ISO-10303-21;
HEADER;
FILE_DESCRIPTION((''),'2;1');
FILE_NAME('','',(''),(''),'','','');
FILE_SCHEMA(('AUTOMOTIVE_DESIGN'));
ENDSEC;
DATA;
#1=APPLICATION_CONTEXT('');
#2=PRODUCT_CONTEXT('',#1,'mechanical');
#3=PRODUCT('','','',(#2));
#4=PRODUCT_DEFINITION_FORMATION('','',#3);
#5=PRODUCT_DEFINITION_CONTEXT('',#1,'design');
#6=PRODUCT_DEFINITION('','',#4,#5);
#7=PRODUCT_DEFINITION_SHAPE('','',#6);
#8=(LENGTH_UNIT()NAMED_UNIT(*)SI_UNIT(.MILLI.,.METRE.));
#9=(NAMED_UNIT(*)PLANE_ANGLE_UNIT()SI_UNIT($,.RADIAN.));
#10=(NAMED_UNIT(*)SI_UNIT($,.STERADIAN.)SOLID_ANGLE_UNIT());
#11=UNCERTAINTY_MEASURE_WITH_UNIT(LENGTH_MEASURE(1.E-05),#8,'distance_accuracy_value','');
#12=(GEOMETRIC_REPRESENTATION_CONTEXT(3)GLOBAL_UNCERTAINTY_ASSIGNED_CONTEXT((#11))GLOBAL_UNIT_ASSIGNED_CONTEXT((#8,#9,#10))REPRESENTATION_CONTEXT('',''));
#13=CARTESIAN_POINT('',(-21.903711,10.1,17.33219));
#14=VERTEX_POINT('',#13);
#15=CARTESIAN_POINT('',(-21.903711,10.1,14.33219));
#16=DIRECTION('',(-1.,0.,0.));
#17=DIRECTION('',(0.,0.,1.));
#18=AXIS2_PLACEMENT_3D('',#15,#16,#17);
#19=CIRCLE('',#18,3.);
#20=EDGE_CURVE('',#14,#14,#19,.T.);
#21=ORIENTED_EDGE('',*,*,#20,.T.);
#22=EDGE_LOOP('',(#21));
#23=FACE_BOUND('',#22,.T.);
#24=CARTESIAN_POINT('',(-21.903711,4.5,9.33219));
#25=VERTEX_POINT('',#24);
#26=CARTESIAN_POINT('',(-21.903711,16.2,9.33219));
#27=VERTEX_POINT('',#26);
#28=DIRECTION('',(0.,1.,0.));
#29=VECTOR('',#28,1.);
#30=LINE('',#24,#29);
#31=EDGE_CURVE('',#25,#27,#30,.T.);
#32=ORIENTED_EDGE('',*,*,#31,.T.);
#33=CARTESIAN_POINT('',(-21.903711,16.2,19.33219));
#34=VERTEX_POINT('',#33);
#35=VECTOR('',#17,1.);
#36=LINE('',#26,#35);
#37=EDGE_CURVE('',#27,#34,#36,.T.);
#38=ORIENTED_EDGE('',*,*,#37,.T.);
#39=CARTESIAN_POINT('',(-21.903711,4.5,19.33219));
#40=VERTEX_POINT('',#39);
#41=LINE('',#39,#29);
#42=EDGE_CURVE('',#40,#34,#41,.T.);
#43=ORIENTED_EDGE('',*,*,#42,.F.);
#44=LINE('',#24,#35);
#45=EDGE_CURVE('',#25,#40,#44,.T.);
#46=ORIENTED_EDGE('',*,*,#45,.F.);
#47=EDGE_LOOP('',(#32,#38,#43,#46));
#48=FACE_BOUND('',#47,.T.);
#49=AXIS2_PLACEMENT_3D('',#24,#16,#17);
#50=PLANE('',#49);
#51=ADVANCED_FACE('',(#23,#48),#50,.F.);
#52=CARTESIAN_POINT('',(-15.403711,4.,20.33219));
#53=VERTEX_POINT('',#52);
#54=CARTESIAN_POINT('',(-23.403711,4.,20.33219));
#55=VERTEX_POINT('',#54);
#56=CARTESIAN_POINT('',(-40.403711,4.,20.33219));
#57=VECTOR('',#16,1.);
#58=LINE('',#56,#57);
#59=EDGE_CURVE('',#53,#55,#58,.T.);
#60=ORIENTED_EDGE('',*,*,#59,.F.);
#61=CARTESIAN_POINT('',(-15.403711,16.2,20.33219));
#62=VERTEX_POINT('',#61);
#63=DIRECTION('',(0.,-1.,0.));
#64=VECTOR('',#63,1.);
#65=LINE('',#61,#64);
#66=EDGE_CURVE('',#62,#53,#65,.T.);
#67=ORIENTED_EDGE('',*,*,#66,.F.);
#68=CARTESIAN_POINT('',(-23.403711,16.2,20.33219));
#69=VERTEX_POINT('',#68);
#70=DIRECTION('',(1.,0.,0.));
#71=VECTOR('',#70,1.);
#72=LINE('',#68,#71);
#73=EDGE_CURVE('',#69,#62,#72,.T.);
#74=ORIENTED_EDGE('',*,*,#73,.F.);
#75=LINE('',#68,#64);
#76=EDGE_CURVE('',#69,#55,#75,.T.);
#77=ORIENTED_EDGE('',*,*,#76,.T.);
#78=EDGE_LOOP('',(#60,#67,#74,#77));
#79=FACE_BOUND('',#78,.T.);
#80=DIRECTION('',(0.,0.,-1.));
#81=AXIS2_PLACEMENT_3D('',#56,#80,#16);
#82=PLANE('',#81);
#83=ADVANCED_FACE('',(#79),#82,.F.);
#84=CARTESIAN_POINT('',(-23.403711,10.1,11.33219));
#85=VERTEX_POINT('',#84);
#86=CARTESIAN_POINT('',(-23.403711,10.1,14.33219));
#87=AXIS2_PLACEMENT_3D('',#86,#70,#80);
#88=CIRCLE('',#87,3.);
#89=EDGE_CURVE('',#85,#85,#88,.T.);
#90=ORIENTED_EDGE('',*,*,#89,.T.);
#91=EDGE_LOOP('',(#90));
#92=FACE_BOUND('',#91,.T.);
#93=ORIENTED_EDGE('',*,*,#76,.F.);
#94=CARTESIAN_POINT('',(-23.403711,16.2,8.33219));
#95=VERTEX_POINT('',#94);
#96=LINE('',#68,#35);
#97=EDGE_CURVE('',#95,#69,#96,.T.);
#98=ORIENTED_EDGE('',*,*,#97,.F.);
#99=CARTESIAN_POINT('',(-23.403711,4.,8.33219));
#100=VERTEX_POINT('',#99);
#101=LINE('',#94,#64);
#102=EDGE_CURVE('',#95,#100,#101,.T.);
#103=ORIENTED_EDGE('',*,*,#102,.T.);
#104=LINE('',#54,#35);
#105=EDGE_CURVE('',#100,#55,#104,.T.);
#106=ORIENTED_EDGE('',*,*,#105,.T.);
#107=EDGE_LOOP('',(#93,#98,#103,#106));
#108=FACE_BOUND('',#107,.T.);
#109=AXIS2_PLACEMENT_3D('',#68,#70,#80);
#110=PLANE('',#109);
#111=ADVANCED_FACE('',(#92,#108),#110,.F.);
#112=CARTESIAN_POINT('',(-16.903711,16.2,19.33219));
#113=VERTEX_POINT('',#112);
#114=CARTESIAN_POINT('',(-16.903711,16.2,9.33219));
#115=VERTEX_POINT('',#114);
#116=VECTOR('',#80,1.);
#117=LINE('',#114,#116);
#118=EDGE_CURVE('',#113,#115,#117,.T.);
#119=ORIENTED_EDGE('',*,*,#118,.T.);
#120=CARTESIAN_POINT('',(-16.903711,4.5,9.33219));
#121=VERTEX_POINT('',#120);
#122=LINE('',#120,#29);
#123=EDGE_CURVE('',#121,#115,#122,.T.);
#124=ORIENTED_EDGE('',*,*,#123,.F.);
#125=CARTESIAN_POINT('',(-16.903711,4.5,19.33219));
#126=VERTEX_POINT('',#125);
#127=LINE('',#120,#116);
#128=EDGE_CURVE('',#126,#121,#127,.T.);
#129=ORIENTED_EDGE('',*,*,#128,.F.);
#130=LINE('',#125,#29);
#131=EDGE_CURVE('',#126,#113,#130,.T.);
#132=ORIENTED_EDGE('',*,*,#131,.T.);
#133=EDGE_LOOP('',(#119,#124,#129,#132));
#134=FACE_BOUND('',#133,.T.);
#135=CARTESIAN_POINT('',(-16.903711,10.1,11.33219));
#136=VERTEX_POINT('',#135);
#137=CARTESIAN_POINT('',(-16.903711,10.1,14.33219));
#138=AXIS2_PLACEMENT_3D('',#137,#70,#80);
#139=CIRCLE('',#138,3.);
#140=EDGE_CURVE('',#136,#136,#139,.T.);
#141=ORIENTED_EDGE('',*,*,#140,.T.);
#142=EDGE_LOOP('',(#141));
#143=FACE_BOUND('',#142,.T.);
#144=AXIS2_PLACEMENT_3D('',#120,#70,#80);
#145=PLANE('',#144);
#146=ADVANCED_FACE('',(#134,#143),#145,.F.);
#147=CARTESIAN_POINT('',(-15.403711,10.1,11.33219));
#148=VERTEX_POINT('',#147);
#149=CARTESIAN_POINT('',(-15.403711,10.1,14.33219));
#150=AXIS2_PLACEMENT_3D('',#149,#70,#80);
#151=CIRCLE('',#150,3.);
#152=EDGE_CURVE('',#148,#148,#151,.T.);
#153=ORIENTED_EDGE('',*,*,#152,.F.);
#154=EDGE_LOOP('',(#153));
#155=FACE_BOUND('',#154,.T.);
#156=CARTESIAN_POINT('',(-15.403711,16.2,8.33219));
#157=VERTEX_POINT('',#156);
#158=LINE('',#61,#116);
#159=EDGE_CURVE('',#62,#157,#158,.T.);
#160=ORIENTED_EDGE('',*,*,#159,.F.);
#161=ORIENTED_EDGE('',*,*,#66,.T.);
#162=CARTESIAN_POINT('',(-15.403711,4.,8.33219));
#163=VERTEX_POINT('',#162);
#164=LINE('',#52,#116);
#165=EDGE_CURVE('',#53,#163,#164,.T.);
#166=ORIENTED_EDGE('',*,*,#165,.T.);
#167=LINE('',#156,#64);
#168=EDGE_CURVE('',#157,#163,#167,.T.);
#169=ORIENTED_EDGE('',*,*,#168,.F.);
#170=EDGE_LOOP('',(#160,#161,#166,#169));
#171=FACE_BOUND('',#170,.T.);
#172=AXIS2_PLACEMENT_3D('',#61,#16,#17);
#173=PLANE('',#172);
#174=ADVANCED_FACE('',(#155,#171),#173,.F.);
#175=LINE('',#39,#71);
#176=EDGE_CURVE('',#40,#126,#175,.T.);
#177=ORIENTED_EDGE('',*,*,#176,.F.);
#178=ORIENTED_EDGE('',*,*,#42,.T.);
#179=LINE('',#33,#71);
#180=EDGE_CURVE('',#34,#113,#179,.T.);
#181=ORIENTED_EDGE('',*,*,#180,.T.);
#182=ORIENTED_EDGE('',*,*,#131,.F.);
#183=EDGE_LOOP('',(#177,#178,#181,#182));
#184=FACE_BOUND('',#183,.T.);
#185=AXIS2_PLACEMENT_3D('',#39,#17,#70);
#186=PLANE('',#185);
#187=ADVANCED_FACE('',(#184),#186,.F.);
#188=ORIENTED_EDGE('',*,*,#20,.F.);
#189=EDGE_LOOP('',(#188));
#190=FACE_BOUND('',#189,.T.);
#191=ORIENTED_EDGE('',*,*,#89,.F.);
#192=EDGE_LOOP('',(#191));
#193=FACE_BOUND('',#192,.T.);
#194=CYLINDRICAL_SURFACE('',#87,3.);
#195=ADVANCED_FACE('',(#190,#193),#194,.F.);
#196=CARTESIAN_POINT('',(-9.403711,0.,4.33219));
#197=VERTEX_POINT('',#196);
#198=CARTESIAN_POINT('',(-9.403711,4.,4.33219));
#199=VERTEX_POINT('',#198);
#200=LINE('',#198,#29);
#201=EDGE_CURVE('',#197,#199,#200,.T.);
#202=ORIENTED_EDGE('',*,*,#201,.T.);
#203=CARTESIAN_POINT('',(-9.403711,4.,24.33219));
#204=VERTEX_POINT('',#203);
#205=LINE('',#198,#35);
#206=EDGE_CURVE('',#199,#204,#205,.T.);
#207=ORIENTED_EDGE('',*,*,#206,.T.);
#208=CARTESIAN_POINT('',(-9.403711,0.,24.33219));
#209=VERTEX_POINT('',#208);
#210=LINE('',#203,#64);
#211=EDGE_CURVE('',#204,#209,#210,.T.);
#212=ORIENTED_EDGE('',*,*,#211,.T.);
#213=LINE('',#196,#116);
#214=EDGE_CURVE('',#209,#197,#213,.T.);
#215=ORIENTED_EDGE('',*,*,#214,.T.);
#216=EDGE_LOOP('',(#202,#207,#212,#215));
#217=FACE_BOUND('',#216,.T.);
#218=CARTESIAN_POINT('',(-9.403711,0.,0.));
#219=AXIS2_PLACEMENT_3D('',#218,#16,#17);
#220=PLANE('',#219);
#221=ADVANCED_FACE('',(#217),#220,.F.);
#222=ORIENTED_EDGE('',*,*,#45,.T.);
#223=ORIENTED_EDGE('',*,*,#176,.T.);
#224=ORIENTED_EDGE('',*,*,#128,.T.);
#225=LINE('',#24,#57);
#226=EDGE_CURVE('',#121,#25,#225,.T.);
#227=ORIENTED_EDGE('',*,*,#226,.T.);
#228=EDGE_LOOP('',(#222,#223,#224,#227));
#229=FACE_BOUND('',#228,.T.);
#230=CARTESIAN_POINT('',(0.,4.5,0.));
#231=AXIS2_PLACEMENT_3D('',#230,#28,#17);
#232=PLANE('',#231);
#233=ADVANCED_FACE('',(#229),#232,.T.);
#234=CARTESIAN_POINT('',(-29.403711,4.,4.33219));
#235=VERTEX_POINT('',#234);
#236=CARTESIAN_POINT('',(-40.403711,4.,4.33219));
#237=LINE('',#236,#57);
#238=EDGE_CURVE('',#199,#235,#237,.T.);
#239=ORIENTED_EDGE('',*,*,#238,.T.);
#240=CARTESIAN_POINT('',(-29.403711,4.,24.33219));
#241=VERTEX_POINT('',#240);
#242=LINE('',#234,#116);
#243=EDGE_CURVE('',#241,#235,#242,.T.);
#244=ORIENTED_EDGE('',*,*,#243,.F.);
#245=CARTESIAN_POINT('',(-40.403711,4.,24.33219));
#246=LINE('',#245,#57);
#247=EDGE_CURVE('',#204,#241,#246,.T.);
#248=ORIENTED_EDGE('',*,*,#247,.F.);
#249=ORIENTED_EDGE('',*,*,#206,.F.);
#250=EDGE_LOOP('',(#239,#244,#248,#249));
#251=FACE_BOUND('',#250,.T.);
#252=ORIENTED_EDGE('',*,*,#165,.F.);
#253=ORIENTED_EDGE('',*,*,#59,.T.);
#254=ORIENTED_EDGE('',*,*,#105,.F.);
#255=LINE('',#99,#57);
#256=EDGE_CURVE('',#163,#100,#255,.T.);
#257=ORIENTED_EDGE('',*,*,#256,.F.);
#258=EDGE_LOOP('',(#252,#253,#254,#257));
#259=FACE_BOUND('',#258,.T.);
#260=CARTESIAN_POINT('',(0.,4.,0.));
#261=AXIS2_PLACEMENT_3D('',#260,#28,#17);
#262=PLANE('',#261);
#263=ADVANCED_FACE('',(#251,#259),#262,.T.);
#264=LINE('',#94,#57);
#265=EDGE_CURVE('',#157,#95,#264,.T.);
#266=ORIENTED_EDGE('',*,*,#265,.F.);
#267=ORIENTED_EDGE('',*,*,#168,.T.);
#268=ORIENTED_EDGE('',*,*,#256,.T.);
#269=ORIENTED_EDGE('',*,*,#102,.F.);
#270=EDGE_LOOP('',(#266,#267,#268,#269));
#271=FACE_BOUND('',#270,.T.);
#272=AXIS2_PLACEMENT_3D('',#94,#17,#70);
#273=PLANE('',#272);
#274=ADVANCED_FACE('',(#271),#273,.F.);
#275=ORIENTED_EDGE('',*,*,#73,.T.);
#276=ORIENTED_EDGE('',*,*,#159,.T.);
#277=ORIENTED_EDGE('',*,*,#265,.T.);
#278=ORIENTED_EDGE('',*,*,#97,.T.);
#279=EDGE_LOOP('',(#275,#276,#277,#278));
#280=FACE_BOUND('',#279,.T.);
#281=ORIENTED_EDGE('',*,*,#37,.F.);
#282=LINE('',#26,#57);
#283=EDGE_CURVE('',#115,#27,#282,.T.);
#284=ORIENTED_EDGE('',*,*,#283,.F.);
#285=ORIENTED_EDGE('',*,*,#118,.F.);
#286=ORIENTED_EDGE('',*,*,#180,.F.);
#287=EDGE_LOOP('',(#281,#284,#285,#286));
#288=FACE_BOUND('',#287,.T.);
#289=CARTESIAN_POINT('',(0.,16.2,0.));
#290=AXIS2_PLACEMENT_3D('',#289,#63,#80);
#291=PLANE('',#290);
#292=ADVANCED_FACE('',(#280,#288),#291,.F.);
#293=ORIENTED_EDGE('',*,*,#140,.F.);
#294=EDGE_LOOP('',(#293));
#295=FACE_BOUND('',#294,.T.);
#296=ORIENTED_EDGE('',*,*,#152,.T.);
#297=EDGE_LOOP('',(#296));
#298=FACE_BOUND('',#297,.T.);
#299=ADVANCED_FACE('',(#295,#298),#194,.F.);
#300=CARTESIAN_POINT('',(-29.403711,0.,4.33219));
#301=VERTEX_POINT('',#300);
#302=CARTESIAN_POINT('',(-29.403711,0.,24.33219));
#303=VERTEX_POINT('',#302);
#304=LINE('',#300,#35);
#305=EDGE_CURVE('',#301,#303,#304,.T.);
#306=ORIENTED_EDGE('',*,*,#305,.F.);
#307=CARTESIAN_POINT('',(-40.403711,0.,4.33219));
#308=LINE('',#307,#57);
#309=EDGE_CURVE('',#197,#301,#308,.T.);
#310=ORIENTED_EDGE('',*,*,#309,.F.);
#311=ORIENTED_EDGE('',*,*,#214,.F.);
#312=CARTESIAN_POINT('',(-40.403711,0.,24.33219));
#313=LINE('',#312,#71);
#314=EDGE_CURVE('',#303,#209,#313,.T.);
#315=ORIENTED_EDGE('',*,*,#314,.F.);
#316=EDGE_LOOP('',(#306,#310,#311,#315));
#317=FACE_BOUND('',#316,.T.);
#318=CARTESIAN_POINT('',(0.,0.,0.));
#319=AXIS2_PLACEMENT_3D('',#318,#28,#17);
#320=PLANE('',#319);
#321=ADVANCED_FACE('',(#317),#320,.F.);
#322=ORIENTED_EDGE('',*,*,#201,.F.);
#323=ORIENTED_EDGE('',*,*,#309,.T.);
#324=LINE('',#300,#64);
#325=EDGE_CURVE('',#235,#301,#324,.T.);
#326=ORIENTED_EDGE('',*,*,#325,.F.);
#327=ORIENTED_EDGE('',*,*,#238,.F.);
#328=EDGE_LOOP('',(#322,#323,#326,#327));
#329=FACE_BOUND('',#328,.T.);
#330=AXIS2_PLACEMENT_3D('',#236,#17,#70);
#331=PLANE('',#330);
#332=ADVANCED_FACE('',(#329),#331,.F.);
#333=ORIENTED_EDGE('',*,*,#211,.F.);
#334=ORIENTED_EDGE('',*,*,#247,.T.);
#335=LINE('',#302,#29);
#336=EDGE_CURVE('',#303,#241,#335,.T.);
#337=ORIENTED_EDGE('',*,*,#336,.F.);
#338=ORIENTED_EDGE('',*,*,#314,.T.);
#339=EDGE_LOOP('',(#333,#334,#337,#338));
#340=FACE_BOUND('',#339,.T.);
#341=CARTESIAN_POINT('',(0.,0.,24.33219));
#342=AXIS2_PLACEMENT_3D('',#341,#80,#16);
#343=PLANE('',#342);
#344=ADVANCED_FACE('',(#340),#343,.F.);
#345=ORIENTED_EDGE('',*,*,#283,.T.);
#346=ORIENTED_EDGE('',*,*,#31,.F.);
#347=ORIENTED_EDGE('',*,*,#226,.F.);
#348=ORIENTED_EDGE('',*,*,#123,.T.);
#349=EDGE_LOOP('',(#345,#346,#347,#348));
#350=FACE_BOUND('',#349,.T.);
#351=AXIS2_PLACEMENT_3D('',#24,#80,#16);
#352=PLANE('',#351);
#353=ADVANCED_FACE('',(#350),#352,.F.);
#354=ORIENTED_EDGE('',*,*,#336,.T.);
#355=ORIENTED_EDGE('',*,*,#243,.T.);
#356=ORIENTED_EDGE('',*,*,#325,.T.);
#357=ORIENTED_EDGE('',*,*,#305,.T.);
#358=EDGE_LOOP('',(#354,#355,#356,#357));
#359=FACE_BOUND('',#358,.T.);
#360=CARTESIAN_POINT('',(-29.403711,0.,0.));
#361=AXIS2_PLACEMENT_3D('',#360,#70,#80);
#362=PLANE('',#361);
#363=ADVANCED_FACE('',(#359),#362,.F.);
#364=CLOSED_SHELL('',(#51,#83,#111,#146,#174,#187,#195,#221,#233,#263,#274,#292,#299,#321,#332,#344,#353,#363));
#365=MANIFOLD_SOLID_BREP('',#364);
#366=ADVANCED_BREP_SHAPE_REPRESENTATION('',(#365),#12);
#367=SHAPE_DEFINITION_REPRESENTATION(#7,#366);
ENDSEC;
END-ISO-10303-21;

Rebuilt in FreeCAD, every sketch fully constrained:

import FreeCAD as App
import Part
import Sketcher

V = App.Vector
Q = App.Units.Quantity

doc = App.newDocument("Part")
body = doc.addObject("PartDesign::Body", "Body")

# Sketch on XZ plane
sketch1 = doc.addObject("Sketcher::SketchObject", "Sketch")
body.addObject(sketch1)
sketch1.AttachmentSupport = (doc.XZ_Plane, [""])
sketch1.MapMode = "FlatFace"
sketch1.addGeometry([
    Part.LineSegment(V(-40.403711, 4.33219, 0), V(-40.403711, 20.33219, 0)),
    Part.LineSegment(V(-40.403711, 20.33219, 0), V(1.596289, 20.33219, 0)),
    Part.LineSegment(V(1.596289, 20.33219, 0), V(1.596289, 4.33219, 0)),
    Part.LineSegment(V(1.596289, 4.33219, 0), V(-40.403711, 4.33219, 0)),
], False)
sketch1.addConstraint([
    Sketcher.Constraint("Coincident", 0, 2, 1, 1),
    Sketcher.Constraint("Coincident", 1, 2, 2, 1),
    Sketcher.Constraint("Coincident", 2, 2, 3, 1),
    Sketcher.Constraint("Coincident", 3, 2, 0, 1),
    Sketcher.Constraint("Vertical", 0),
    Sketcher.Constraint("Horizontal", 1),
    Sketcher.Constraint("Vertical", 2),
    Sketcher.Constraint("Horizontal", 3),
    Sketcher.Constraint("DistanceX", 1, 1, 1, 2, Q("42 mm")),
    Sketcher.Constraint("DistanceY", 0, 1, 0, 2, Q("16 mm")),
    Sketcher.Constraint("DistanceX", 0, 2, -1, 1, Q("40.403711 mm")),
    Sketcher.Constraint("DistanceY", -1, 1, 0, 2, Q("20.33219 mm")),
])
pad1 = doc.addObject("PartDesign::Pad", "Pad")
body.addObject(pad1)
pad1.Profile = sketch1
pad1.Length = 4
pad1.Reversed = True

# Sketch on XZ plane
sketch2 = doc.addObject("Sketcher::SketchObject", "Sketch001")
body.addObject(sketch2)
sketch2.AttachmentSupport = (doc.XZ_Plane, [""])
sketch2.MapMode = "FlatFace"
sketch2.AttachmentOffset = App.Placement(V(0, 0, -4), App.Rotation())
sketch2.addGeometry([
    Part.LineSegment(V(-23.403711, 8.33219, 0), V(-23.403711, 20.33219, 0)),
    Part.LineSegment(V(-23.403711, 20.33219, 0), V(-15.403711, 20.33219, 0)),
    Part.LineSegment(V(-15.403711, 20.33219, 0), V(-15.403711, 8.33219, 0)),
    Part.LineSegment(V(-15.403711, 8.33219, 0), V(-23.403711, 8.33219, 0)),
], False)
sketch2.addConstraint([
    Sketcher.Constraint("Coincident", 0, 2, 1, 1),
    Sketcher.Constraint("Coincident", 1, 2, 2, 1),
    Sketcher.Constraint("Coincident", 2, 2, 3, 1),
    Sketcher.Constraint("Coincident", 3, 2, 0, 1),
    Sketcher.Constraint("Vertical", 0),
    Sketcher.Constraint("Horizontal", 1),
    Sketcher.Constraint("Vertical", 2),
    Sketcher.Constraint("Horizontal", 3),
    Sketcher.Constraint("DistanceX", 1, 1, 1, 2, Q("8 mm")),
    Sketcher.Constraint("DistanceY", 0, 1, 0, 2, Q("12 mm")),
    Sketcher.Constraint("DistanceX", 0, 2, -1, 1, Q("23.403711 mm")),
    Sketcher.Constraint("DistanceY", -1, 1, 0, 2, Q("20.33219 mm")),
])
pad2 = doc.addObject("PartDesign::Pad", "Pad001")
body.addObject(pad2)
pad2.Profile = sketch2
pad2.Length = 12.2
pad2.Reversed = True

# Sketch on XZ plane
sketch3 = doc.addObject("Sketcher::SketchObject", "Sketch002")
body.addObject(sketch3)
sketch3.AttachmentSupport = (doc.XZ_Plane, [""])
sketch3.MapMode = "FlatFace"
sketch3.AttachmentOffset = App.Placement(V(0, 0, -16.2), App.Rotation())
sketch3.addGeometry([
    Part.LineSegment(V(-21.903711, 9.33219, 0), V(-21.903711, 19.33219, 0)),
    Part.LineSegment(V(-21.903711, 19.33219, 0), V(-16.903711, 19.33219, 0)),
    Part.LineSegment(V(-16.903711, 19.33219, 0), V(-16.903711, 9.33219, 0)),
    Part.LineSegment(V(-16.903711, 9.33219, 0), V(-21.903711, 9.33219, 0)),
], False)
sketch3.addConstraint([
    Sketcher.Constraint("Coincident", 0, 2, 1, 1),
    Sketcher.Constraint("Coincident", 1, 2, 2, 1),
    Sketcher.Constraint("Coincident", 2, 2, 3, 1),
    Sketcher.Constraint("Coincident", 3, 2, 0, 1),
    Sketcher.Constraint("Vertical", 0),
    Sketcher.Constraint("Horizontal", 1),
    Sketcher.Constraint("Vertical", 2),
    Sketcher.Constraint("Horizontal", 3),
    Sketcher.Constraint("DistanceX", 1, 1, 1, 2, Q("5 mm")),
    Sketcher.Constraint("DistanceY", 0, 1, 0, 2, Q("10 mm")),
    Sketcher.Constraint("DistanceX", 0, 2, -1, 1, Q("21.903711 mm")),
    Sketcher.Constraint("DistanceY", -1, 1, 0, 2, Q("19.33219 mm")),
])
pocket1 = doc.addObject("PartDesign::Pocket", "Pocket")
body.addObject(pocket1)
pocket1.Profile = sketch3
pocket1.Length = 11.7
pocket1.Reversed = True

# Sketch on YZ plane
sketch4 = doc.addObject("Sketcher::SketchObject", "Sketch003")
body.addObject(sketch4)
sketch4.AttachmentSupport = (doc.YZ_Plane, [""])
sketch4.MapMode = "FlatFace"
sketch4.AttachmentOffset = App.Placement(V(0, 0, -15.403711), App.Rotation())
sketch4.addGeometry(Part.Circle(V(10.1, 14.33219, 0), V(0, 0, 1), 3), False)
sketch4.addConstraint([
    Sketcher.Constraint("Diameter", 0, Q("6 mm")),
    Sketcher.Constraint("DistanceX", -1, 1, 0, 3, Q("10.1 mm")),
    Sketcher.Constraint("DistanceY", -1, 1, 0, 3, Q("14.33219 mm")),
])
pocket2 = doc.addObject("PartDesign::Pocket", "Pocket001")
body.addObject(pocket2)
pocket2.Profile = sketch4
pocket2.Length = 8

# Sketch on XY plane
sketch5 = doc.addObject("Sketcher::SketchObject", "Sketch004")
body.addObject(sketch5)
sketch5.AttachmentSupport = (doc.XY_Plane, [""])
sketch5.MapMode = "FlatFace"
sketch5.AttachmentOffset = App.Placement(V(0, 0, 20.33219), App.Rotation())
sketch5.addGeometry([
    Part.LineSegment(V(-40.403711, 4, 0), V(-40.403711, 0, 0)),
    Part.LineSegment(V(-40.403711, 0, 0), V(1.596289, 0, 0)),
    Part.LineSegment(V(1.596289, 0, 0), V(1.596289, 4, 0)),
    Part.LineSegment(V(1.596289, 4, 0), V(-40.403711, 4, 0)),
], False)
sketch5.addConstraint([
    Sketcher.Constraint("Coincident", 0, 2, 1, 1),
    Sketcher.Constraint("Coincident", 1, 2, 2, 1),
    Sketcher.Constraint("Coincident", 2, 2, 3, 1),
    Sketcher.Constraint("Coincident", 3, 2, 0, 1),
    Sketcher.Constraint("Vertical", 0),
    Sketcher.Constraint("Horizontal", 1),
    Sketcher.Constraint("Vertical", 2),
    Sketcher.Constraint("Horizontal", 3),
    Sketcher.Constraint("PointOnObject", 0, 2, -1),
    Sketcher.Constraint("DistanceX", 1, 1, 1, 2, Q("42 mm")),
    Sketcher.Constraint("DistanceY", 0, 2, 0, 1, Q("4 mm")),
    Sketcher.Constraint("DistanceX", 0, 2, -1, 1, Q("40.403711 mm")),
])
pad3 = doc.addObject("PartDesign::Pad", "Pad002")
body.addObject(pad3)
pad3.Profile = sketch5
pad3.Length = 4

# Sketch on YZ plane
sketch6 = doc.addObject("Sketcher::SketchObject", "Sketch005")
body.addObject(sketch6)
sketch6.AttachmentSupport = (doc.YZ_Plane, [""])
sketch6.MapMode = "FlatFace"
sketch6.AttachmentOffset = App.Placement(V(0, 0, -40.403711), App.Rotation())
sketch6.addGeometry([
    Part.LineSegment(V(4, 4.33219, 0), V(0, 4.33219, 0)),
    Part.LineSegment(V(0, 4.33219, 0), V(0, 24.33219, 0)),
    Part.LineSegment(V(0, 24.33219, 0), V(4, 24.33219, 0)),
    Part.LineSegment(V(4, 24.33219, 0), V(4, 4.33219, 0)),
], False)
sketch6.addConstraint([
    Sketcher.Constraint("Coincident", 0, 2, 1, 1),
    Sketcher.Constraint("Coincident", 1, 2, 2, 1),
    Sketcher.Constraint("Coincident", 2, 2, 3, 1),
    Sketcher.Constraint("Coincident", 3, 2, 0, 1),
    Sketcher.Constraint("Horizontal", 0),
    Sketcher.Constraint("Vertical", 1),
    Sketcher.Constraint("Horizontal", 2),
    Sketcher.Constraint("Vertical", 3),
    Sketcher.Constraint("PointOnObject", 0, 2, -2),
    Sketcher.Constraint("DistanceX", 0, 2, 0, 1, Q("4 mm")),
    Sketcher.Constraint("DistanceY", 1, 1, 1, 2, Q("20 mm")),
    Sketcher.Constraint("DistanceY", -1, 1, 0, 2, Q("4.33219 mm")),
])
pocket3 = doc.addObject("PartDesign::Pocket", "Pocket002")
body.addObject(pocket3)
pocket3.Profile = sketch6
pocket3.Length = 11
pocket3.Reversed = True

# Sketch on YZ plane
sketch7 = doc.addObject("Sketcher::SketchObject", "Sketch006")
body.addObject(sketch7)
sketch7.AttachmentSupport = (doc.YZ_Plane, [""])
sketch7.MapMode = "FlatFace"
sketch7.AttachmentOffset = App.Placement(V(0, 0, 1.596289), App.Rotation())
sketch7.addGeometry([
    Part.LineSegment(V(4, 24.33219, 0), V(0, 24.33219, 0)),
    Part.LineSegment(V(0, 24.33219, 0), V(0, 4.33219, 0)),
    Part.LineSegment(V(0, 4.33219, 0), V(4, 4.33219, 0)),
    Part.LineSegment(V(4, 4.33219, 0), V(4, 24.33219, 0)),
], False)
sketch7.addConstraint([
    Sketcher.Constraint("Coincident", 0, 2, 1, 1),
    Sketcher.Constraint("Coincident", 1, 2, 2, 1),
    Sketcher.Constraint("Coincident", 2, 2, 3, 1),
    Sketcher.Constraint("Coincident", 3, 2, 0, 1),
    Sketcher.Constraint("Horizontal", 0),
    Sketcher.Constraint("Vertical", 1),
    Sketcher.Constraint("Horizontal", 2),
    Sketcher.Constraint("Vertical", 3),
    Sketcher.Constraint("PointOnObject", 0, 2, -2),
    Sketcher.Constraint("DistanceX", 0, 2, 0, 1, Q("4 mm")),
    Sketcher.Constraint("DistanceY", 1, 2, 1, 1, Q("20 mm")),
    Sketcher.Constraint("DistanceY", -1, 1, 0, 2, Q("24.33219 mm")),
])
pocket4 = doc.addObject("PartDesign::Pocket", "Pocket003")
body.addObject(pocket4)
pocket4.Profile = sketch7
pocket4.Length = 11

doc.recompute()
